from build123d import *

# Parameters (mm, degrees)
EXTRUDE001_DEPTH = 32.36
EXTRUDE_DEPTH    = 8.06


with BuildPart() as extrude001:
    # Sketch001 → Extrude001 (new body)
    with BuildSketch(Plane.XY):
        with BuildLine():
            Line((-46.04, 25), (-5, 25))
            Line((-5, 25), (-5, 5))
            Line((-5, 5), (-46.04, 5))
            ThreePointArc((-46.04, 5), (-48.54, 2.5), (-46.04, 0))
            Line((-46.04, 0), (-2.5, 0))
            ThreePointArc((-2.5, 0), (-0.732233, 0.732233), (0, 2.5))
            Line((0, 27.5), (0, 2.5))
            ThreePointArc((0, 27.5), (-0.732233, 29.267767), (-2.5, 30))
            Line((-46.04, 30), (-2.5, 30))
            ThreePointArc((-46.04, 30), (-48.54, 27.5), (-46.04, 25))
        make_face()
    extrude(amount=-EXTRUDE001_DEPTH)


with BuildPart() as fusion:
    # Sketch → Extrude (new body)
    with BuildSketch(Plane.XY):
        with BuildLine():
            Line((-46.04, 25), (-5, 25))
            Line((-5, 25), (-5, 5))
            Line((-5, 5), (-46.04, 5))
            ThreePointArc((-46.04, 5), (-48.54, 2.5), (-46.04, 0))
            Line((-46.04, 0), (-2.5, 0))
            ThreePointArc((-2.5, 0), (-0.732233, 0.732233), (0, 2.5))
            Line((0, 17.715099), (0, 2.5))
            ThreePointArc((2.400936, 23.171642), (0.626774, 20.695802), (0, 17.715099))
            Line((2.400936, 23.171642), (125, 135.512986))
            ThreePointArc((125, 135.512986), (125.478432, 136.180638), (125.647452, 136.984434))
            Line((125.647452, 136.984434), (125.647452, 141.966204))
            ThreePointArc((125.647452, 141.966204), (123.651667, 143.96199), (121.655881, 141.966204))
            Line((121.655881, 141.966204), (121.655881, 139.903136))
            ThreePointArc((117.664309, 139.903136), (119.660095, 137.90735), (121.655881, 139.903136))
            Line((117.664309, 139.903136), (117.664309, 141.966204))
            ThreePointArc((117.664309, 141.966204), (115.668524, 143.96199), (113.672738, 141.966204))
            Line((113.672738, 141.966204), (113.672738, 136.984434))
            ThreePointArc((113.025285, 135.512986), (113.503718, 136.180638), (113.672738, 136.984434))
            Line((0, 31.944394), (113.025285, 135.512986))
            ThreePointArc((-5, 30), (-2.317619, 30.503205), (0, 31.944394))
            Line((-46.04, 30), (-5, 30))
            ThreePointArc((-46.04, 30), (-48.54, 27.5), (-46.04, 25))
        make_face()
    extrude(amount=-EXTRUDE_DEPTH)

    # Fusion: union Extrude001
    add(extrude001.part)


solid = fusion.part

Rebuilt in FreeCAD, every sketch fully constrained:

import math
import FreeCAD as App
import Part
import Sketcher
from FreeCAD import Vector
Q = App.Units.Quantity

doc = App.newDocument("Part")
body = doc.addObject("PartDesign::Body", "Body")

# Sketch on XY plane
sketch1 = doc.addObject("Sketcher::SketchObject", "Sketch")
body.addObject(sketch1)
sketch1.AttachmentSupport = (doc.XY_Plane, [""])
sketch1.MapMode = "FlatFace"
sketch1.addGeometry([
    Part.LineSegment(Vector(-46, 25, 0), Vector(-5, 25, 0)),  # 0
    Part.LineSegment(Vector(-5, 25, 0), Vector(-5, 5, 0)),  # 1
    Part.LineSegment(Vector(-5, 5, 0), Vector(-46, 5, 0)),  # 2
    Part.ArcOfCircle(Part.Circle(Vector(-46, 2.5, 0), Vector(0, 0, 1), 2.5), math.radians(90), math.radians(270)),  # 3
    Part.LineSegment(Vector(-46, 0, 0), Vector(-2.5, 0, 0)),  # 4
    Part.ArcOfCircle(Part.Circle(Vector(-2.5, 2.5, 0), Vector(0, 0, 1), 2.5), math.radians(-90), math.radians(0)),  # 5
    Part.LineSegment(Vector(0, 2.5, 0), Vector(0, 27.5, 0)),  # 6
    Part.ArcOfCircle(Part.Circle(Vector(-2.5, 27.5, 0), Vector(0, 0, 1), 2.5), math.radians(0), math.radians(90)),  # 7
    Part.LineSegment(Vector(-2.5, 30, 0), Vector(-46, 30, 0)),  # 8
    Part.ArcOfCircle(Part.Circle(Vector(-46, 27.5, 0), Vector(0, 0, 1), 2.5), math.radians(90), math.radians(270)),  # 9
], False)
sketch1.addConstraint([
    Sketcher.Constraint("Coincident", 0, 2, 1, 1),
    Sketcher.Constraint("Coincident", 1, 2, 2, 1),
    Sketcher.Constraint("Tangent", 2, 2, 3, 1),
    Sketcher.Constraint("Tangent", 3, 2, 4, 1),
    Sketcher.Constraint("Tangent", 4, 2, 5, 1),
    Sketcher.Constraint("Tangent", 5, 2, 6, 1),
    Sketcher.Constraint("Tangent", 6, 2, 7, 1),
    Sketcher.Constraint("Tangent", 7, 2, 8, 1),
    Sketcher.Constraint("Tangent", 8, 2, 9, 1),
    Sketcher.Constraint("Tangent", 9, 2, 0, 1),
    Sketcher.Constraint("Horizontal", 0),
    Sketcher.Constraint("Vertical", 1),
    Sketcher.Constraint("Horizontal", 2),
    Sketcher.Constraint("Horizontal", 4),
    Sketcher.Constraint("Vertical", 6),
    Sketcher.Constraint("Horizontal", 8),
    Sketcher.Constraint("Equal", 3, 5),
    Sketcher.Constraint("Equal", 5, 7),
    Sketcher.Constraint("Equal", 7, 9),
    Sketcher.Constraint("PointOnObject", 3, 2, -1),
    Sketcher.Constraint("PointOnObject", 5, 2, -2),
    Sketcher.Constraint("Vertical", 3, 3, 9, 3),
    Sketcher.Constraint("Radius", 3, Q("2.5 mm")),
    Sketcher.Constraint("DistanceY", 1, 2, 1, 1, Q("20 mm")),
    Sketcher.Constraint("DistanceX", 0, 2, -1, 1, Q("5 mm")),
    Sketcher.Constraint("DistanceX", 0, 1, 0, 2, Q("41.04 mm")),
])
pad1 = doc.addObject("PartDesign::Pad", "Pad")
body.addObject(pad1)
pad1.Profile = sketch1
pad1.Length = 32.36
pad1.Reversed = True
body2 = doc.addObject("PartDesign::Body", "Body001")

# Sketch on XY plane
sketch2 = doc.addObject("Sketcher::SketchObject", "Sketch001")
body2.addObject(sketch2)
sketch2.AttachmentSupport = (doc.getObject("XY_Plane001"), [""])
sketch2.MapMode = "FlatFace"
sketch2.addGeometry([
    Part.LineSegment(Vector(-46.04, 25, 0), Vector(-5, 25, 0)),  # 0
    Part.LineSegment(Vector(-5, 25, 0), Vector(-5, 5, 0)),  # 1
    Part.LineSegment(Vector(-5, 5, 0), Vector(-46.04, 5, 0)),  # 2
    Part.ArcOfCircle(Part.Circle(Vector(-46.04, 2.5, 0), Vector(0, 0, 1), 2.5), math.radians(90), math.radians(270)),  # 3
    Part.LineSegment(Vector(-46.04, 0, 0), Vector(-2.5, 0, 0)),  # 4
    Part.ArcOfCircle(Part.Circle(Vector(-2.5, 2.5, 0), Vector(0, 0, 1), 2.5), math.radians(-90.000004), math.radians(0.000004)),  # 5
    Part.LineSegment(Vector(0, 2.5, 0), Vector(0, 17.715099, 0)),  # 6
    Part.ArcOfCircle(Part.Circle(Vector(7.400934, 17.715101, 0), Vector(0, 0, 1), 7.400934), math.radians(132.499993), math.radians(180.000014)),  # 7
    Part.LineSegment(Vector(2.400936, 23.171642, 0), Vector(125, 135.512986, 0)),  # 8
    Part.ArcOfCircle(Part.Circle(Vector(123.651664, 136.984434, 0), Vector(0, 0, 1), 1.995788), math.radians(-47.499951), math.radians(-0.000009)),  # 9
    Part.LineSegment(Vector(125.647452, 136.984434, 0), Vector(125.647452, 141.966204, 0)),  # 10
    Part.ArcOfCircle(Part.Circle(Vector(123.651667, 141.966205, 0), Vector(0, 0, 1), 1.995785), math.radians(-0.000014), math.radians(180.000014)),  # 11
    Part.LineSegment(Vector(121.655881, 141.966204, 0), Vector(121.655881, 139.903136, 0)),  # 12
    Part.ArcOfCircle(Part.Circle(Vector(119.660095, 139.903136, 0), Vector(0, 0, 1), 1.995786), math.radians(180), math.radians(360)),  # 13
    Part.LineSegment(Vector(117.664309, 139.903136, 0), Vector(117.664309, 141.966204, 0)),  # 14
    Part.ArcOfCircle(Part.Circle(Vector(115.668524, 141.966205, 0), Vector(0, 0, 1), 1.995785), math.radians(-0.000014), math.radians(180.000014)),  # 15
    Part.LineSegment(Vector(113.672738, 141.966204, 0), Vector(113.672738, 136.984434, 0)),  # 16
    Part.ArcOfCircle(Part.Circle(Vector(111.676954, 136.984433, 0), Vector(0, 0, 1), 1.995784), math.radians(-47.50004), math.radians(0.000015)),  # 17
    Part.LineSegment(Vector(113.025285, 135.512986, 0), Vector(0, 31.944394, 0)),  # 18
    Part.ArcOfCircle(Part.Circle(Vector(-4.999997, 37.400928, 0), Vector(0, 0, 1), 7.400928), math.radians(-90.000022), math.radians(-47.499971)),  # 19
    Part.LineSegment(Vector(-5, 30, 0), Vector(-46.04, 30, 0)),  # 20
    Part.ArcOfCircle(Part.Circle(Vector(-46.04, 27.5, 0), Vector(0, 0, 1), 2.5), math.radians(90), math.radians(270)),  # 21
], False)
sketch2.addConstraint([
    Sketcher.Constraint("Coincident", 0, 2, 1, 1),
    Sketcher.Constraint("Coincident", 1, 2, 2, 1),
    Sketcher.Constraint("Coincident", 2, 2, 3, 1),
    Sketcher.Constraint("Coincident", 3, 2, 4, 1),
    Sketcher.Constraint("Coincident", 4, 2, 5, 1),
    Sketcher.Constraint("Coincident", 5, 2, 6, 1),
    Sketcher.Constraint("Coincident", 6, 2, 7, 2),
    Sketcher.Constraint("Coincident", 7, 1, 8, 1),
    Sketcher.Constraint("Coincident", 8, 2, 9, 1),
    Sketcher.Constraint("Coincident", 9, 2, 10, 1),
    Sketcher.Constraint("Coincident", 10, 2, 11, 1),
    Sketcher.Constraint("Coincident", 11, 2, 12, 1),
    Sketcher.Constraint("Coincident", 12, 2, 13, 2),
    Sketcher.Constraint("Coincident", 13, 1, 14, 1),
    Sketcher.Constraint("Coincident", 14, 2, 15, 1),
    Sketcher.Constraint("Coincident", 15, 2, 16, 1),
    Sketcher.Constraint("Coincident", 16, 2, 17, 2),
    Sketcher.Constraint("Coincident", 17, 1, 18, 1),
    Sketcher.Constraint("Coincident", 18, 2, 19, 2),
    Sketcher.Constraint("Coincident", 19, 1, 20, 1),
    Sketcher.Constraint("Coincident", 20, 2, 21, 1),
    Sketcher.Constraint("Coincident", 21, 2, 0, 1),
    Sketcher.Constraint("Horizontal", 0),
    Sketcher.Constraint("Vertical", 1),
    Sketcher.Constraint("Horizontal", 2),
    Sketcher.Constraint("Horizontal", 4),
    Sketcher.Constraint("Vertical", 6),
    Sketcher.Constraint("Vertical", 10),
    Sketcher.Constraint("Vertical", 12),
    Sketcher.Constraint("Vertical", 14),
    Sketcher.Constraint("Vertical", 16),
    Sketcher.Constraint("Horizontal", 20),
    Sketcher.Constraint("PointOnObject", 3, 2, -1),
    Sketcher.Constraint("PointOnObject", 5, 2, -2),
    Sketcher.Constraint("PointOnObject", 18, 2, -2),
    Sketcher.Constraint("Radius", 3, Q("2.5 mm")),
    Sketcher.Constraint("Radius", 5, Q("2.5 mm")),
    Sketcher.Constraint("Radius", 21, Q("2.5 mm")),
    Sketcher.Constraint("DistanceY", 1, 2, 1, 1, Q("20 mm")),
    Sketcher.Constraint("DistanceX", 0, 2, -1, 1, Q("5 mm")),
    Sketcher.Constraint("DistanceX", -1, 1, 8, 2, Q("125 mm")),
    Sketcher.Constraint("DistanceX", 19, 1, -1, 1, Q("5 mm")),
    Sketcher.Constraint("DistanceX", 0, 1, 0, 2, Q("41.04 mm")),
    Sketcher.Constraint("DistanceX", 2, 2, 2, 1, Q("41.04 mm")),
    Sketcher.Constraint("DistanceX", 4, 1, 4, 2, Q("43.54 mm")),
    Sketcher.Constraint("DistanceX", 20, 2, 20, 1, Q("41.04 mm")),
    Sketcher.Constraint("DistanceX", 4, 2, -1, 1, Q("2.5 mm")),
    Sketcher.Constraint("DistanceY", -1, 1, 5, 2, Q("2.5 mm")),
    Sketcher.Constraint("DistanceX", 3, 3, -1, 1, Q("46.04 mm")),
    Sketcher.Constraint("DistanceX", 21, 3, -1, 1, Q("46.04 mm")),
    Sketcher.Constraint("Radius", 9, Q("1.995788 mm")),
    Sketcher.Constraint("DistanceY", 6, 1, 6, 2, Q("15.215099 mm")),
    Sketcher.Constraint("Radius", 7, Q("7.400934 mm")),
    Sketcher.Constraint("Radius", 11, Q("1.995785 mm")),
    Sketcher.Constraint("Radius", 13, Q("1.995786 mm")),
    Sketcher.Constraint("Radius", 15, Q("1.995785 mm")),
    Sketcher.Constraint("Radius", 17, Q("1.995784 mm")),
    Sketcher.Constraint("Radius", 19, Q("7.400928 mm")),
    Sketcher.Constraint("DistanceY", 10, 1, 10, 2, Q("4.98177 mm")),
    Sketcher.Constraint("DistanceY", 12, 2, 12, 1, Q("2.063068 mm")),
    Sketcher.Constraint("DistanceY", 14, 1, 14, 2, Q("2.063068 mm")),
    Sketcher.Constraint("DistanceY", 16, 2, 16, 1, Q("4.98177 mm")),
    Sketcher.Constraint("DistanceY", -1, 1, 7, 3, Q("17.715101 mm")),
    Sketcher.Constraint("DistanceY", 9, 3, 13, 3, Q("2.918702 mm")),
    Sketcher.Constraint("DistanceY", 9, 2, 13, 3, Q("2.918702 mm")),
    Sketcher.Constraint("DistanceY", 9, 3, 12, 2, Q("2.918702 mm")),
    Sketcher.Constraint("DistanceY", 16, 2, 13, 1, Q("2.918702 mm")),
    Sketcher.Constraint("DistanceX", -1, 1, 9, 2, Q("125.647452 mm")),
    Sketcher.Constraint("DistanceY", 9, 3, 11, 3, Q("4.98177 mm")),
    Sketcher.Constraint("DistanceY", 13, 3, 15, 3, Q("2.063069 mm")),
    Sketcher.Constraint("DistanceY", 17, 3, 15, 3, Q("4.981771 mm")),
    Sketcher.Constraint("DistanceX", 19, 3, 7, 3, Q("12.400931 mm")),
    Sketcher.Constraint("DistanceY", 7, 3, 7, 1, Q("5.456541 mm")),
    Sketcher.Constraint("DistanceY", 13, 1, 15, 3, Q("2.063069 mm")),
    Sketcher.Constraint("DistanceX", 17, 3, 17, 1, Q("1.348331 mm")),
    Sketcher.Constraint("Distance", 8, Q("166.286223 mm")),
])
pad2 = doc.addObject("PartDesign::Pad", "Pad001")
body2.addObject(pad2)
pad2.Profile = sketch2
pad2.Length = 8.06
pad2.Reversed = True
doc.recompute()

boolean = doc.addObject("PartDesign::Boolean", "Boolean")
body2.addObject(boolean)
boolean.Type = "Fuse"
boolean.addObjects([body])

doc.recompute()
